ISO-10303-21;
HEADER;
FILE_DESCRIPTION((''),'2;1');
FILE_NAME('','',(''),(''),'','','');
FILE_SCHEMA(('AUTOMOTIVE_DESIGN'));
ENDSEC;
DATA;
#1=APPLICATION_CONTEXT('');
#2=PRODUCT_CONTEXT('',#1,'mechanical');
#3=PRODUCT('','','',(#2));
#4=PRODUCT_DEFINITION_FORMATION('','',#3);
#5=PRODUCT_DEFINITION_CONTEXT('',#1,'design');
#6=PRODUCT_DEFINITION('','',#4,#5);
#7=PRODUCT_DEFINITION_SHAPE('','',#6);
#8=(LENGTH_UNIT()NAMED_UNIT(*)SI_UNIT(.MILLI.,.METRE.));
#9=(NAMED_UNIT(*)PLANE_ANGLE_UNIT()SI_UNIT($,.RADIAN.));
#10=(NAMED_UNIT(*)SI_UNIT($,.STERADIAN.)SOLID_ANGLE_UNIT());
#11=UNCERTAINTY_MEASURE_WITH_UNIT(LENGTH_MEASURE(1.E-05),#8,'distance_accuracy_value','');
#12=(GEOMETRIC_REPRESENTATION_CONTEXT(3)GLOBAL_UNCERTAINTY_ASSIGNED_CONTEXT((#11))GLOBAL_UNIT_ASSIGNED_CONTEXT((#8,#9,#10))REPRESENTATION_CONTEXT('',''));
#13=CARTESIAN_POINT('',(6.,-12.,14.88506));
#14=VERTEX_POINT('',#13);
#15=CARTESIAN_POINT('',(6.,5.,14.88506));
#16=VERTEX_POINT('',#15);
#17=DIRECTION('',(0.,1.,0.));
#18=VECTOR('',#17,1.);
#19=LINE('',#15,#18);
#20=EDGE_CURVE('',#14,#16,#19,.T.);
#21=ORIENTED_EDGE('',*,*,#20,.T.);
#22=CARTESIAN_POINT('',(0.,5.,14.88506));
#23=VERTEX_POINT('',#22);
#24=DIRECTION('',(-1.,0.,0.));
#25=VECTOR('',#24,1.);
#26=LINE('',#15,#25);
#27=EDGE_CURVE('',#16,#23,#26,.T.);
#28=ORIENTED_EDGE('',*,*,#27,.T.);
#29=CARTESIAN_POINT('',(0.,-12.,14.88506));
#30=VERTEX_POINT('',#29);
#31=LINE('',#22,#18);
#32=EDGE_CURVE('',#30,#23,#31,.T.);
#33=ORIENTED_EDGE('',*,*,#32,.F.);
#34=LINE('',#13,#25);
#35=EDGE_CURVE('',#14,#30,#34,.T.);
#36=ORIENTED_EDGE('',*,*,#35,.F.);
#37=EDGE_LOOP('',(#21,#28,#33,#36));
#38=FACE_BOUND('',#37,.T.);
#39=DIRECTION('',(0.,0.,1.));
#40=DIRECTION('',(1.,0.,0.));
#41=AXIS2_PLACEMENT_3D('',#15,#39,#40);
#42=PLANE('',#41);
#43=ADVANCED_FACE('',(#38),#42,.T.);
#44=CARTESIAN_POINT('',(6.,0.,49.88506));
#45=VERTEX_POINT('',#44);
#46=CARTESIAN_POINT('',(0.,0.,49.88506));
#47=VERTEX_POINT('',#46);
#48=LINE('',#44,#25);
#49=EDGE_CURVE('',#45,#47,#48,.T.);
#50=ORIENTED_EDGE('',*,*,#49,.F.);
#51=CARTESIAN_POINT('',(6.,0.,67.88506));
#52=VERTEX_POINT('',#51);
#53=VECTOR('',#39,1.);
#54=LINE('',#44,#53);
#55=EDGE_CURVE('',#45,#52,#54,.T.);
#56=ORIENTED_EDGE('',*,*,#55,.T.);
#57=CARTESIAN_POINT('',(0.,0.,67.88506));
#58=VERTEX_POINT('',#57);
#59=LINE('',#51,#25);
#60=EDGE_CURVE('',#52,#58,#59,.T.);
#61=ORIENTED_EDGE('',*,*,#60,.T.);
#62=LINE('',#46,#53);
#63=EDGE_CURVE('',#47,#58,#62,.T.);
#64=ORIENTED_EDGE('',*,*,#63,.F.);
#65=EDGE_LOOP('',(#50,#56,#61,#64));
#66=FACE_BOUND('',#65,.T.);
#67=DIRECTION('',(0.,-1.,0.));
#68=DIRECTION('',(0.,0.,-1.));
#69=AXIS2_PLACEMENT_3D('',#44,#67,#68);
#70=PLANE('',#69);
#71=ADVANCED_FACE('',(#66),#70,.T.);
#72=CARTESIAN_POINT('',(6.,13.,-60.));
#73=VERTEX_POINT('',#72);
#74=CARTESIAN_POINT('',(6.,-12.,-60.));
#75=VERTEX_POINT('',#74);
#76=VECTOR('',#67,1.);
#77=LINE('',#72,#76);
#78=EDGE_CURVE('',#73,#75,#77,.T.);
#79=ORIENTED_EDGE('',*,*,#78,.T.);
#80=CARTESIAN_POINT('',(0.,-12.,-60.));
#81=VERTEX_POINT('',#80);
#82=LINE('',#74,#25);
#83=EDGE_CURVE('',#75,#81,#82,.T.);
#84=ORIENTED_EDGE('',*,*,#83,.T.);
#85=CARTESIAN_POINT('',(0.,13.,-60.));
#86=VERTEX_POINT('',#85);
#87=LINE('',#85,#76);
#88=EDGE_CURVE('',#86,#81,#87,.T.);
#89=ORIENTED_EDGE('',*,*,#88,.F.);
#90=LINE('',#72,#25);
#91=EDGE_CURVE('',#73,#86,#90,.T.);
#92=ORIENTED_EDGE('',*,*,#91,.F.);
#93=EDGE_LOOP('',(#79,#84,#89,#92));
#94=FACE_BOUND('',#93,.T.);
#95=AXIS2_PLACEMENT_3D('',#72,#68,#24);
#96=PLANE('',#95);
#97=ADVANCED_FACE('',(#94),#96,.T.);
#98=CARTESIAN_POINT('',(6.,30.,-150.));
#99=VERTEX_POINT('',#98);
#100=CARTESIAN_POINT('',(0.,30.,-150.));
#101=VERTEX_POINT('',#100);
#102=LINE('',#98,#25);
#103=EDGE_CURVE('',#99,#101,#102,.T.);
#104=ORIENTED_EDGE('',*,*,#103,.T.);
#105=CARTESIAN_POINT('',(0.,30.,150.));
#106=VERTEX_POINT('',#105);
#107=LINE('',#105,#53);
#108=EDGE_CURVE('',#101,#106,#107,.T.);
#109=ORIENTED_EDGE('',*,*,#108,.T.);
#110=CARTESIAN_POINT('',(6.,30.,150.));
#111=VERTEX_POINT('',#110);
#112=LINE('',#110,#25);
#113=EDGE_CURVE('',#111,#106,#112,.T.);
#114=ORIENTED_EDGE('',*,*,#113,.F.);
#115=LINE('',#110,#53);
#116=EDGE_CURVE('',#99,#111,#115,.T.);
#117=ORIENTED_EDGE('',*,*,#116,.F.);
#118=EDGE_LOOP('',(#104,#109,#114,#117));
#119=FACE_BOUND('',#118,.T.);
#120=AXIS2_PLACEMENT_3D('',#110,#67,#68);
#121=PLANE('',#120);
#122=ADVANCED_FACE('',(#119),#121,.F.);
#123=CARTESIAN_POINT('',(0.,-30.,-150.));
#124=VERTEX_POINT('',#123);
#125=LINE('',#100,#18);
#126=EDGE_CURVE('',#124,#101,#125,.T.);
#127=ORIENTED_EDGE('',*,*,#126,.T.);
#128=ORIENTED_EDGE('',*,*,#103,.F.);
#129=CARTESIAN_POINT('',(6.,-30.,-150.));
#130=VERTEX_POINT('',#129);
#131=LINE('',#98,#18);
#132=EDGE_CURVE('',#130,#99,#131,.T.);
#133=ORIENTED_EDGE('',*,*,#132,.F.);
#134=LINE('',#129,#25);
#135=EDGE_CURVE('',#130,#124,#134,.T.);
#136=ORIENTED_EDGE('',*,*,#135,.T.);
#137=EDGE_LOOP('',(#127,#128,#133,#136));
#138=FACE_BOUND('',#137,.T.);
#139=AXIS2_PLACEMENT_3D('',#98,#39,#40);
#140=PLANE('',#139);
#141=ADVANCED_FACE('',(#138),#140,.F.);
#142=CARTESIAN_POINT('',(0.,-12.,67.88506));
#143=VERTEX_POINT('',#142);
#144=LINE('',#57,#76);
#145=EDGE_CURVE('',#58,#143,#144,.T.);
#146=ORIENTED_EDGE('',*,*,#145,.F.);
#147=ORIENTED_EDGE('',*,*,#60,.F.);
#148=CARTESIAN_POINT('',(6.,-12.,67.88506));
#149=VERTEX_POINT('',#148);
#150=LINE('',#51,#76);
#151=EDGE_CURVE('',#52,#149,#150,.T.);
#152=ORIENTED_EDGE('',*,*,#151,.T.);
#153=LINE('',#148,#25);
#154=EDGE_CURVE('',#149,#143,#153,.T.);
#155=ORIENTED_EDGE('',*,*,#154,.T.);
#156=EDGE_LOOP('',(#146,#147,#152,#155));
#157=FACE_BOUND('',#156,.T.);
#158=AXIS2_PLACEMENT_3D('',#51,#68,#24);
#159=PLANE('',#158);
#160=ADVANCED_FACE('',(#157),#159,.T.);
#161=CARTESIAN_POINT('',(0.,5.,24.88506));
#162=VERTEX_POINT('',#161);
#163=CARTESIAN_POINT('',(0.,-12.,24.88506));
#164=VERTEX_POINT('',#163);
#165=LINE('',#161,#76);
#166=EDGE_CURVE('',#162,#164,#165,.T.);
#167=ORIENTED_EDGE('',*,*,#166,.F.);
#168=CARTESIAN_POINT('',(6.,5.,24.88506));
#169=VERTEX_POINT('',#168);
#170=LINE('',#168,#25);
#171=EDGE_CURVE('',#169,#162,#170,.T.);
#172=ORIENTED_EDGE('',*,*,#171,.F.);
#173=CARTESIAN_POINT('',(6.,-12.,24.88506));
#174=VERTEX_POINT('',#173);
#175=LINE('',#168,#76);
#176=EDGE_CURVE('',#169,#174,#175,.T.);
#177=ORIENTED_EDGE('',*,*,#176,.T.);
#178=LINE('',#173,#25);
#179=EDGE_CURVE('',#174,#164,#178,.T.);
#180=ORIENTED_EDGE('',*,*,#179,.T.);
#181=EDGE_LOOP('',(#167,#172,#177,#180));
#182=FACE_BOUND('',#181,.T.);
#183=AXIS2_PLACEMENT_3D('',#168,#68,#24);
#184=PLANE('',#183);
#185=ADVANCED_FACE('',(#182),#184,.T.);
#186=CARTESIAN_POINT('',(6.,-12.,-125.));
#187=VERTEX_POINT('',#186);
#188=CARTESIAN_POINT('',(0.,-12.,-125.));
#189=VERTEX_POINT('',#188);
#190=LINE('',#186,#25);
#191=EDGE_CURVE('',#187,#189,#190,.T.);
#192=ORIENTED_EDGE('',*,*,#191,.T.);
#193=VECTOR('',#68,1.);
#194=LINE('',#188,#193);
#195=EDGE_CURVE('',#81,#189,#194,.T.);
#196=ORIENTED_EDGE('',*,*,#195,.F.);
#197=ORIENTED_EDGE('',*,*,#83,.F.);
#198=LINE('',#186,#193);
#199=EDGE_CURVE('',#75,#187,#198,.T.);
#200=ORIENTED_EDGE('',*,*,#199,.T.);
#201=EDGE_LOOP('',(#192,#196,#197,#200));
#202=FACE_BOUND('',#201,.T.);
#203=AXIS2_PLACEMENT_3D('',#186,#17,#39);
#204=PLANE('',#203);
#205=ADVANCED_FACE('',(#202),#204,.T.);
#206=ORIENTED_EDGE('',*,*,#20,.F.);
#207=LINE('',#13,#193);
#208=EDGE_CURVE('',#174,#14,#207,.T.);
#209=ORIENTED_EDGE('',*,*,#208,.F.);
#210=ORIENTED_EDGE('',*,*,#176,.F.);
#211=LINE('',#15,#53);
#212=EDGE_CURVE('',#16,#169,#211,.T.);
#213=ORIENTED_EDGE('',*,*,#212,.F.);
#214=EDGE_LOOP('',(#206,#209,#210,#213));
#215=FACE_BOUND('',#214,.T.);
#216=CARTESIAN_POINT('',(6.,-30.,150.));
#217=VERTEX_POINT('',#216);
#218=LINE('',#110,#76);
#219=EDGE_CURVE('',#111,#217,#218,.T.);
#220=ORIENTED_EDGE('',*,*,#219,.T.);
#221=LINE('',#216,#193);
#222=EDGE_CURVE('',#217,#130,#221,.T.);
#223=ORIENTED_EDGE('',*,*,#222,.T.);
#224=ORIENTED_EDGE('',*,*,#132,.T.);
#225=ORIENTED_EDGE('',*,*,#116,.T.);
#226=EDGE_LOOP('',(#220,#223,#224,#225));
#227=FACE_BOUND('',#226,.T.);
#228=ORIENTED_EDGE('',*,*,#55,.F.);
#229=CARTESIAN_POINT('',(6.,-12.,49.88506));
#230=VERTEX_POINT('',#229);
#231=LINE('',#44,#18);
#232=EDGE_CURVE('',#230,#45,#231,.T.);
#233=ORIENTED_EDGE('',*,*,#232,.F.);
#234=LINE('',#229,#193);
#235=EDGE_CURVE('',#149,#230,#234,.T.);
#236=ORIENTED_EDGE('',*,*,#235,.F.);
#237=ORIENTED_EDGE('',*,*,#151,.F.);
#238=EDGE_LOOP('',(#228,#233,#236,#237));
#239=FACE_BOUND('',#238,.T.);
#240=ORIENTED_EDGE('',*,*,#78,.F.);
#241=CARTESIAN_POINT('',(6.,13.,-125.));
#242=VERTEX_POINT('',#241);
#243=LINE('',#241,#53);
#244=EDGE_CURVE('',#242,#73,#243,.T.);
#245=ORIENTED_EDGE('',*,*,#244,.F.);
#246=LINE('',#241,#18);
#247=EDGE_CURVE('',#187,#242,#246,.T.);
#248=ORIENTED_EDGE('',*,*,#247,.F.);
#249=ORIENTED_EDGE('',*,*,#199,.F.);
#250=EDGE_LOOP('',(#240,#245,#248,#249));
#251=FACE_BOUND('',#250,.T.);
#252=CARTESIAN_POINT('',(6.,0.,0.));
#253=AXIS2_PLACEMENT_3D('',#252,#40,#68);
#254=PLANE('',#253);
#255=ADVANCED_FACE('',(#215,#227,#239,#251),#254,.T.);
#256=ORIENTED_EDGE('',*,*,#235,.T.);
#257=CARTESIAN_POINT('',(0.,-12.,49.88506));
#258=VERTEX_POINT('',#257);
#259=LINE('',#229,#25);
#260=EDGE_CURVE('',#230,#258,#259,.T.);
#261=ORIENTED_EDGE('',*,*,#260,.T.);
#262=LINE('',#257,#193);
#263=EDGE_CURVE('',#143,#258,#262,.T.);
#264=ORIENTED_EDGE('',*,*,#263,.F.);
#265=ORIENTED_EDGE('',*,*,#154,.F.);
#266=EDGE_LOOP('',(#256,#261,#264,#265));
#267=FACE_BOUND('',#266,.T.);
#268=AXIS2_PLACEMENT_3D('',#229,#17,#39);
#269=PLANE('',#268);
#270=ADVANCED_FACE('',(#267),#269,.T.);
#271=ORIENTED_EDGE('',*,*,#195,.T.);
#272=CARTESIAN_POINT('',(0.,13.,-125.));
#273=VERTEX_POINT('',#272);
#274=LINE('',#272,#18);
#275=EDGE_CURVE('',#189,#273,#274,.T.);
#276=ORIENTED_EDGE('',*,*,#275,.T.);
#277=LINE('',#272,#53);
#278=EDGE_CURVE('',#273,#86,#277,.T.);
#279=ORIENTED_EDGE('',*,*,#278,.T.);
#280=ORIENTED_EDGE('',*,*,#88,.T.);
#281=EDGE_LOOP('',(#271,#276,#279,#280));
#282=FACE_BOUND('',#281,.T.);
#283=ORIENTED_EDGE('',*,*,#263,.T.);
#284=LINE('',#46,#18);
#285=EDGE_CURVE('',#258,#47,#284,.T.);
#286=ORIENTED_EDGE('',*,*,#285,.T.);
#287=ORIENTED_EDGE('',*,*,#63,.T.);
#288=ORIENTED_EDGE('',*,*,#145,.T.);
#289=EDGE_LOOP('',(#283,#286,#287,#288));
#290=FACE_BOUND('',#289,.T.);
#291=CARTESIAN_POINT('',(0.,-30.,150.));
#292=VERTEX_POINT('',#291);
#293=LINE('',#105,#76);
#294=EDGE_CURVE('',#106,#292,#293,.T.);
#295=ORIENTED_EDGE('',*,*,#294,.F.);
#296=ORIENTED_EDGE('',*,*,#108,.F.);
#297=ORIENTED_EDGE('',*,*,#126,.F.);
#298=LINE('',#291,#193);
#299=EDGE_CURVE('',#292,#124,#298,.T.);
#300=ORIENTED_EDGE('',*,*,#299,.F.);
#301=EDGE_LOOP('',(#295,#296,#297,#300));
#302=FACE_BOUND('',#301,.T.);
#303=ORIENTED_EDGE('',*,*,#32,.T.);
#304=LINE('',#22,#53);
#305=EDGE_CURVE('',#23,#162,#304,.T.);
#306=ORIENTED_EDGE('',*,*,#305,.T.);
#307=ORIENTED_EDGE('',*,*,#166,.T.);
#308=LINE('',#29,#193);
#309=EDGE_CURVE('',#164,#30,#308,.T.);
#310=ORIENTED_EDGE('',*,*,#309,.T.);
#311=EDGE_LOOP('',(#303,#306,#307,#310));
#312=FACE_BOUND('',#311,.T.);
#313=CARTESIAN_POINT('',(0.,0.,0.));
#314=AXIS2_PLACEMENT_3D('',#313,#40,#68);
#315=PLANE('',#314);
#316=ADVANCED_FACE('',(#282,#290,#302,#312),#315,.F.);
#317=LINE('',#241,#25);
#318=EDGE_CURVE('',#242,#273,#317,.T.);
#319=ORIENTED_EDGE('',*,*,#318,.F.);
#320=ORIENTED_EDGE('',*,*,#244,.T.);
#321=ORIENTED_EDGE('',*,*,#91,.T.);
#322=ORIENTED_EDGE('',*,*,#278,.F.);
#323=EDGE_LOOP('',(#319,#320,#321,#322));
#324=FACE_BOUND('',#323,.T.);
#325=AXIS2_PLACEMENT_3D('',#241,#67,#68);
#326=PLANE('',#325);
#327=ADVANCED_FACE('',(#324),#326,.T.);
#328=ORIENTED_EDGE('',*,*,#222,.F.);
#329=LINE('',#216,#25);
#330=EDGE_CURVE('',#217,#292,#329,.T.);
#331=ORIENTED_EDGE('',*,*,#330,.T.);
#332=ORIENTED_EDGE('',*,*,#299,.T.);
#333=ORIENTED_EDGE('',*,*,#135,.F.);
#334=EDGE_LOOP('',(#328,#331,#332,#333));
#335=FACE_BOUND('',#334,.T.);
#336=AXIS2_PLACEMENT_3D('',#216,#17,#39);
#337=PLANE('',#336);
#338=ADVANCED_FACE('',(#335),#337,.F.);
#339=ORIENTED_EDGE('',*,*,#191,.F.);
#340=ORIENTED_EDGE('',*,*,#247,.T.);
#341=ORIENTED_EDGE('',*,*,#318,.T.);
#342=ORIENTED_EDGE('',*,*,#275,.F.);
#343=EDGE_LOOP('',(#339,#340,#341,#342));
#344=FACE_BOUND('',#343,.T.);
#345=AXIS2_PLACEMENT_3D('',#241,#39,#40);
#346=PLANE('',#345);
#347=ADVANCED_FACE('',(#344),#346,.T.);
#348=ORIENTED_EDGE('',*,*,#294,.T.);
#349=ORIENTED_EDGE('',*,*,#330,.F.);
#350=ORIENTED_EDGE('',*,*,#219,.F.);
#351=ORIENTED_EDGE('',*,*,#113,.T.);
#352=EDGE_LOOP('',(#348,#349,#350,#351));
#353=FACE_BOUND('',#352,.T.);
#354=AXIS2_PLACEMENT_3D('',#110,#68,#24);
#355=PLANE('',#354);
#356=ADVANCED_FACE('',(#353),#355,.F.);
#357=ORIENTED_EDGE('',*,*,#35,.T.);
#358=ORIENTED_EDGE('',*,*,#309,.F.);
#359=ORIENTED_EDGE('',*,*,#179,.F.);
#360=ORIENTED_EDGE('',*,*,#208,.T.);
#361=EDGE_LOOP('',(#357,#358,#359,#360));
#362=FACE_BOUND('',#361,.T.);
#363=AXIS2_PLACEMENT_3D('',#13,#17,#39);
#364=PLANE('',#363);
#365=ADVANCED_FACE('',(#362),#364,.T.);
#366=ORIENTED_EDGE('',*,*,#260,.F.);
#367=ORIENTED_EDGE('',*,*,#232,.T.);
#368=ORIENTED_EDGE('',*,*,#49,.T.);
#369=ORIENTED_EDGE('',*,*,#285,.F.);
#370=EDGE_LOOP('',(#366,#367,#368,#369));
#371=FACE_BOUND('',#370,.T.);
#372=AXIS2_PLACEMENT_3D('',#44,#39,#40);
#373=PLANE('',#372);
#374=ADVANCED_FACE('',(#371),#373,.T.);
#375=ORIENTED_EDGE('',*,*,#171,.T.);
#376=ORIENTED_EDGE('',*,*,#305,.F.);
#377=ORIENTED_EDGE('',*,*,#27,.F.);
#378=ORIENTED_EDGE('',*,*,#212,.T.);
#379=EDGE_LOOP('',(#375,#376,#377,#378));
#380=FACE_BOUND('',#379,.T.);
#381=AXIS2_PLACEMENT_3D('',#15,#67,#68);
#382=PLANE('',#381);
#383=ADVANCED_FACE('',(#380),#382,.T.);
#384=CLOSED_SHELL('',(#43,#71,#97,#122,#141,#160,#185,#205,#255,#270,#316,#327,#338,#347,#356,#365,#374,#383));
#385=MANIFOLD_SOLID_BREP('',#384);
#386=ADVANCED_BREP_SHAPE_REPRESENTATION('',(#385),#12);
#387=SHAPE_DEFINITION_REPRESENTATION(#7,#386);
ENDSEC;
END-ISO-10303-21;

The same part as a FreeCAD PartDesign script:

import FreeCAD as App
import Part
import Sketcher
from FreeCAD import Vector
Q = App.Units.Quantity

doc = App.newDocument("Part")
body = doc.addObject("PartDesign::Body", "Body")

sketch1 = body.newObject("Sketcher::SketchObject", "Sketch")
sketch1.AttachmentSupport = (doc.getObject("YZ_Plane"), [""])
sketch1.MapMode = "FlatFace"
sketch1.addGeometry([
    Part.LineSegment(Vector(30, 150, 0), Vector(-30, 150, 0)),
    Part.LineSegment(Vector(-30, 150, 0), Vector(-30, -150, 0)),
    Part.LineSegment(Vector(-30, -150, 0), Vector(30, -150, 0)),
    Part.LineSegment(Vector(30, -150, 0), Vector(30, 150, 0)),
    Part.LineSegment(Vector(-12, 50, 0), Vector(-12, 68, 0)),
    Part.LineSegment(Vector(-12, 68, 0), Vector(0, 68, 0)),
    Part.LineSegment(Vector(0, 68, 0), Vector(0, 50, 0)),
    Part.LineSegment(Vector(0, 50, 0), Vector(-12, 50, 0)),
    Part.LineSegment(Vector(-12, 15, 0), Vector(-12, 25, 0)),
    Part.LineSegment(Vector(-12, 25, 0), Vector(5, 25, 0)),
    Part.LineSegment(Vector(5, 25, 0), Vector(5, 15, 0)),
    Part.LineSegment(Vector(5, 15, 0), Vector(-12, 15, 0)),
    Part.LineSegment(Vector(-12, -125, 0), Vector(-12, -60, 0)),
    Part.LineSegment(Vector(-12, -60, 0), Vector(13, -60, 0)),
    Part.LineSegment(Vector(13, -60, 0), Vector(13, -125, 0)),
    Part.LineSegment(Vector(13, -125, 0), Vector(-12, -125, 0)),
], False)
sketch1.addConstraint([
    Sketcher.Constraint("Coincident", 0, 2, 1, 1),
    Sketcher.Constraint("Coincident", 1, 2, 2, 1),
    Sketcher.Constraint("Coincident", 2, 2, 3, 1),
    Sketcher.Constraint("Coincident", 3, 2, 0, 1),
    Sketcher.Constraint("Coincident", 4, 2, 5, 1),
    Sketcher.Constraint("Coincident", 5, 2, 6, 1),
    Sketcher.Constraint("Coincident", 6, 2, 7, 1),
    Sketcher.Constraint("Coincident", 7, 2, 4, 1),
    Sketcher.Constraint("Coincident", 8, 2, 9, 1),
    Sketcher.Constraint("Coincident", 9, 2, 10, 1),
    Sketcher.Constraint("Coincident", 10, 2, 11, 1),
    Sketcher.Constraint("Coincident", 11, 2, 8, 1),
    Sketcher.Constraint("Coincident", 12, 2, 13, 1),
    Sketcher.Constraint("Coincident", 13, 2, 14, 1),
    Sketcher.Constraint("Coincident", 14, 2, 15, 1),
    Sketcher.Constraint("Coincident", 15, 2, 12, 1),
    Sketcher.Constraint("Horizontal", 0),
    Sketcher.Constraint("Vertical", 1),
    Sketcher.Constraint("Horizontal", 2),
    Sketcher.Constraint("Vertical", 3),
    Sketcher.Constraint("Vertical", 4),
    Sketcher.Constraint("Horizontal", 5),
    Sketcher.Constraint("Vertical", 6),
    Sketcher.Constraint("Horizontal", 7),
    Sketcher.Constraint("Vertical", 8),
    Sketcher.Constraint("Horizontal", 9),
    Sketcher.Constraint("Vertical", 10),
    Sketcher.Constraint("Horizontal", 11),
    Sketcher.Constraint("Vertical", 12),
    Sketcher.Constraint("Horizontal", 13),
    Sketcher.Constraint("Vertical", 14),
    Sketcher.Constraint("Horizontal", 15),
    Sketcher.Constraint("Symmetric", 0, 2, 2, 2, -1, 1),
    Sketcher.Constraint("PointOnObject", 5, 2, -2),
    Sketcher.Constraint("Vertical", 7, 2, 8, 2),
    Sketcher.Constraint("Vertical", 11, 2, 12, 2),
    Sketcher.Constraint("DistanceX", 0, 2, 0, 1, Q("60 mm")),
    Sketcher.Constraint("DistanceX", 5, 1, 5, 2, Q("12 mm")),
    Sketcher.Constraint("DistanceX", 9, 1, 9, 2, Q("17 mm")),
    Sketcher.Constraint("DistanceX", 13, 1, 13, 2, Q("25 mm")),
    Sketcher.Constraint("DistanceY", 1, 2, 1, 1, Q("300 mm")),
    Sketcher.Constraint("DistanceY", 4, 1, 4, 2, Q("18 mm")),
    Sketcher.Constraint("DistanceY", 8, 1, 8, 2, Q("10 mm")),
    Sketcher.Constraint("DistanceY", 12, 1, 12, 2, Q("65 mm")),
    Sketcher.Constraint("DistanceY", 12, 2, -1, 1, Q("60 mm")),
    Sketcher.Constraint("DistanceY", 8, 2, 7, 2, Q("25 mm")),
    Sketcher.Constraint("DistanceY", -1, 1, 4, 2, Q("67.88506 mm")),
])
pad1 = body.newObject("PartDesign::Pad", "Pad")
pad1.Profile = sketch1
pad1.Length = 6

doc.recompute()
